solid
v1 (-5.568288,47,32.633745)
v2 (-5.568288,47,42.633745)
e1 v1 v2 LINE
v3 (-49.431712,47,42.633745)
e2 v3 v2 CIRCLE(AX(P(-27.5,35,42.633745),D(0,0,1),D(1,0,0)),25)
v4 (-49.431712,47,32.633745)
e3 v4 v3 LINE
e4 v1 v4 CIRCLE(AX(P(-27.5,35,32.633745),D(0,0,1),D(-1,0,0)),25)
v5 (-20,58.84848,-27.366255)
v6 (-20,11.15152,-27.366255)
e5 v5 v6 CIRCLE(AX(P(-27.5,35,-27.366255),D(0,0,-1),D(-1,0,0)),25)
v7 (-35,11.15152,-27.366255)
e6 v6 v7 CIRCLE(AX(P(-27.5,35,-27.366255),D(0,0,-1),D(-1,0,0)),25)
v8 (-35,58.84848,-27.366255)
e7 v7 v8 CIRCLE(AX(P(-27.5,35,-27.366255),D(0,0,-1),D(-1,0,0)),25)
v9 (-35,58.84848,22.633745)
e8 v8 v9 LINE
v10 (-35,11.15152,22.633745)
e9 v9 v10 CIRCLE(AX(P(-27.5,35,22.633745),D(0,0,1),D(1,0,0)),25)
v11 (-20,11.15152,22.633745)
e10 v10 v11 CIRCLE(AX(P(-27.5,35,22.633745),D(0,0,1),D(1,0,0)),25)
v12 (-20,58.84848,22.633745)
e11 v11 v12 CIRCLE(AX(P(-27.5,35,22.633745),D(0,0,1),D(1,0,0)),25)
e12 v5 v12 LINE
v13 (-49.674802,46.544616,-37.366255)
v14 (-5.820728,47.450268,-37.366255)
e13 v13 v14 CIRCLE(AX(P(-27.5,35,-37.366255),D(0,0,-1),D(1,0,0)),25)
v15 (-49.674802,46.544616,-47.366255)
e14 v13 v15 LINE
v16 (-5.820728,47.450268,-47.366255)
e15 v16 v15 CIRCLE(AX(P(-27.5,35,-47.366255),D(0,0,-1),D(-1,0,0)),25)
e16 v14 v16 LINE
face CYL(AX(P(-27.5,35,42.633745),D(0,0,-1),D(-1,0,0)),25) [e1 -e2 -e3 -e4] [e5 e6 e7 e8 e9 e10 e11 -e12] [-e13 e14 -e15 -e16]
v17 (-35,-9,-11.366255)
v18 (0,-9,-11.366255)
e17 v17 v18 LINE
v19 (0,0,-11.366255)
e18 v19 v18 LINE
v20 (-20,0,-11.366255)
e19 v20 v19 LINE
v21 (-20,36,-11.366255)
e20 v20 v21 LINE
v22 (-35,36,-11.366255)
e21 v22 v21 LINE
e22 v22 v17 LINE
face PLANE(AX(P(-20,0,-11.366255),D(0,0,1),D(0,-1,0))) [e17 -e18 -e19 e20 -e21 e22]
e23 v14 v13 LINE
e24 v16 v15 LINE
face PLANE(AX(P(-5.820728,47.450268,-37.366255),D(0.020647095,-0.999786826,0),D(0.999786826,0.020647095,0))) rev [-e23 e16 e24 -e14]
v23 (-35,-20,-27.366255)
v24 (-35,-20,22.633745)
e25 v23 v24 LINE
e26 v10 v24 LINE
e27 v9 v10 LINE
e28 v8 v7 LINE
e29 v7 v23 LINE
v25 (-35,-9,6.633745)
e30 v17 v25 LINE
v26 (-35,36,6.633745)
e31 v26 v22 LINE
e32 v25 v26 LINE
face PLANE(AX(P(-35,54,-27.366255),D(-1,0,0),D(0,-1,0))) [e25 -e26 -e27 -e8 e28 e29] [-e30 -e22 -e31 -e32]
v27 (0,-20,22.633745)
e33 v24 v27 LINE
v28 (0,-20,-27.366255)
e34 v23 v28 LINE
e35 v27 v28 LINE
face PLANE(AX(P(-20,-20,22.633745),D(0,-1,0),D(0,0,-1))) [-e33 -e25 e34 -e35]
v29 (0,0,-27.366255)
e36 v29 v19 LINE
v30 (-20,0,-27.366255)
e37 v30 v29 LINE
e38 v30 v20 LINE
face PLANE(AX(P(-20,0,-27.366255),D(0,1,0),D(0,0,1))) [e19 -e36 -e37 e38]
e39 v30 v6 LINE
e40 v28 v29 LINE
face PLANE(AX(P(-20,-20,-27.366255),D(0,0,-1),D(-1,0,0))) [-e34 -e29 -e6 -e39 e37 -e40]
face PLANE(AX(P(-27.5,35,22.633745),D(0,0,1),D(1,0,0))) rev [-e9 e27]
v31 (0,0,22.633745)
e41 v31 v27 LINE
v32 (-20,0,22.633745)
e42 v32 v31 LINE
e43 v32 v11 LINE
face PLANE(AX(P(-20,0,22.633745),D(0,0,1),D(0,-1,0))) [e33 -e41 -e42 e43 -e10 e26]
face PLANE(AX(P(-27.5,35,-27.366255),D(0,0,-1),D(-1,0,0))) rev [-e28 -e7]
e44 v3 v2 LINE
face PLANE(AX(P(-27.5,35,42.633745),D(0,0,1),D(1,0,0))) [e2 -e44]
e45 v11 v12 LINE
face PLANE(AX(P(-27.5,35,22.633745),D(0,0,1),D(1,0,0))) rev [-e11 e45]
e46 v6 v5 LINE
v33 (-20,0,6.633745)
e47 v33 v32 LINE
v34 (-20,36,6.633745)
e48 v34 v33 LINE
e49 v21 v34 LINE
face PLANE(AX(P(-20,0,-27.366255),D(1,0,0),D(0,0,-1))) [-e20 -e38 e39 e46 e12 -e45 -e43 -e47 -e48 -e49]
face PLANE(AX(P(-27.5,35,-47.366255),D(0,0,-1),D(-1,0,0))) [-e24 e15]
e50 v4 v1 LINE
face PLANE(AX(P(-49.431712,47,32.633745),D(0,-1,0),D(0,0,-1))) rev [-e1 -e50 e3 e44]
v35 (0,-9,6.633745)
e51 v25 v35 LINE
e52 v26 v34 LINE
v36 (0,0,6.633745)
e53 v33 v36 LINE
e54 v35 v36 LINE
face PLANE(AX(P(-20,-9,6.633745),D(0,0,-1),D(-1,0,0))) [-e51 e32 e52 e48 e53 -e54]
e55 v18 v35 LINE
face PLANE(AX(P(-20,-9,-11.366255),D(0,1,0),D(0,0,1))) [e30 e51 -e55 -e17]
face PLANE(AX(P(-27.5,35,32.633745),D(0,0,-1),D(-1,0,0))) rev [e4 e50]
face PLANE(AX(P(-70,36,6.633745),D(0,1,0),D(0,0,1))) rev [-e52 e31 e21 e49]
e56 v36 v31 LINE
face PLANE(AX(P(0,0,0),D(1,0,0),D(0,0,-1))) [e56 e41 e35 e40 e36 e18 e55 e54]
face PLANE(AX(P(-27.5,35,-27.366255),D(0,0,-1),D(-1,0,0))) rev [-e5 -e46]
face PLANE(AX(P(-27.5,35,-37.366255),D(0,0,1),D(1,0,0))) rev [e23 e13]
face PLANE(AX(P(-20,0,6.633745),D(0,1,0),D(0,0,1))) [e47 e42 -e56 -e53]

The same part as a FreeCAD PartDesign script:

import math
import FreeCAD as App
import Part
import Sketcher
from FreeCAD import Vector


def add_polygon(sketch, points):
    """Adds a closed chain of lines whose ends are joined by coincident constraints."""
    first, n = sketch.GeometryCount, len(points)
    for a, b in zip(points, points[1:] + points[:1]):
        sketch.addGeometry(Part.LineSegment(App.Vector(*a, 0), App.Vector(*b, 0)), False)
    for i in range(n):
        sketch.addConstraint(Sketcher.Constraint("Coincident", first + i, 2, first + (i + 1) % n, 1))

doc = App.newDocument("Part")
body = doc.addObject("PartDesign::Body", "Body")

sketch1 = body.newObject("Sketcher::SketchObject", "Sketch")
sketch1.AttachmentSupport = (doc.getObject("YZ_Plane"), [""])
sketch1.MapMode = "FlatFace"
add_polygon(sketch1, [(0, 23), (-20, 23), (-20, -27), (0, -27), (0, -11), (-9, -11), (-9, 7), (0, 7)])
sketch1.addConstraint([
    Sketcher.Constraint("Horizontal", 0),
    Sketcher.Constraint("Vertical", 1),
    Sketcher.Constraint("Horizontal", 2),
    Sketcher.Constraint("Vertical", 3),
    Sketcher.Constraint("Horizontal", 4),
    Sketcher.Constraint("Vertical", 5),
    Sketcher.Constraint("Horizontal", 6),
    Sketcher.Constraint("Vertical", 7),
    Sketcher.Constraint("PointOnObject", 2, 2, -2),
    Sketcher.Constraint("PointOnObject", 6, 2, -2),
    Sketcher.Constraint("Equal", 3, 7),
    Sketcher.Constraint("DistanceX", 0, 2, 0, 1, 20.0),
    Sketcher.Constraint("DistanceX", 4, 2, 4, 1, 9.0),
    Sketcher.Constraint("DistanceY", 1, 2, 1, 1, 50.0),
    Sketcher.Constraint("DistanceY", 3, 1, 3, 2, 16.0),
    Sketcher.Constraint("DistanceY", -1, 1, 0, 2, 22.633745),
])
pad1 = body.newObject("PartDesign::Pad", "Pad")
pad1.Profile = sketch1
pad1.Length = 20
pad1.Reversed = True

sketch2 = body.newObject("Sketcher::SketchObject", "Sketch001")
sketch2.AttachmentSupport = (doc.getObject("XY_Plane"), [""])
sketch2.MapMode = "FlatFace"
sketch2.AttachmentOffset = App.Placement(Vector(0, 0, 22.633745), App.Rotation())
add_polygon(sketch2, [(-20, 54), (-35, 54), (-35, -20), (-20, -20)])
sketch2.addConstraint([
    Sketcher.Constraint("Horizontal", 0),
    Sketcher.Constraint("Vertical", 1),
    Sketcher.Constraint("Horizontal", 2),
    Sketcher.Constraint("Vertical", 3),
    Sketcher.Constraint("DistanceX", 0, 2, 0, 1, 15.0),
    Sketcher.Constraint("DistanceY", 1, 2, 1, 1, 74.0),
    Sketcher.Constraint("DistanceX", 0, 2, -1, 1, 35.0),
    Sketcher.Constraint("DistanceY", -1, 1, 0, 2, 54.0),
])
pad2 = body.newObject("PartDesign::Pad", "Pad001")
pad2.Profile = sketch2
pad2.Length = 50
pad2.Reversed = True

sketch3 = body.newObject("Sketcher::SketchObject", "Sketch002")
sketch3.AttachmentSupport = (doc.getObject("YZ_Plane"), [""])
sketch3.MapMode = "FlatFace"
sketch3.AttachmentOffset = App.Placement(Vector(0, 0, -20), App.Rotation())
add_polygon(sketch3, [(36, 7), (-9, 7), (-9, -11), (36, -11)])
sketch3.addConstraint([
    Sketcher.Constraint("Horizontal", 0),
    Sketcher.Constraint("Vertical", 1),
    Sketcher.Constraint("Horizontal", 2),
    Sketcher.Constraint("Vertical", 3),
    Sketcher.Constraint("DistanceX", 0, 2, 0, 1, 45.0),
    Sketcher.Constraint("DistanceY", 1, 2, 1, 1, 18.0),
    Sketcher.Constraint("DistanceX", 0, 2, -1, 1, 9.0),
    Sketcher.Constraint("DistanceY", -1, 1, 0, 2, 6.633745),
])
pocket1 = body.newObject("PartDesign::Pocket", "Pocket")
pocket1.Profile = sketch3
pocket1.Length = 50

sketch4 = body.newObject("Sketcher::SketchObject", "Sketch003")
sketch4.AttachmentSupport = (doc.getObject("XY_Plane"), [""])
sketch4.MapMode = "FlatFace"
sketch4.AttachmentOffset = App.Placement(Vector(0, 0, 22.633745), App.Rotation())
sketch4.addGeometry(Part.Circle(Vector(-28, 35, 0), Vector(0, 0, 1), 25), False)
sketch4.addConstraint([
    Sketcher.Constraint("Diameter", 0, 50.0),
    Sketcher.Constraint("DistanceY", -1, 1, 0, 3, 35.0),
    Sketcher.Constraint("DistanceX", 0, 3, -1, 1, 27.5),
])
pad3 = body.newObject("PartDesign::Pad", "Pad002")
pad3.Profile = sketch4
pad3.Length = 20

sketch5 = body.newObject("Sketcher::SketchObject", "Sketch004")
sketch5.AttachmentSupport = (doc.getObject("XY_Plane"), [""])
sketch5.MapMode = "FlatFace"
sketch5.AttachmentOffset = App.Placement(Vector(0, 0, 32.633745), App.Rotation())
sketch5.addGeometry([
    Part.LineSegment(Vector(-49, 47, 0), Vector(-6, 47, 0)),
    Part.ArcOfCircle(Part.Circle(Vector(-28, 35, 0), Vector(0, 0, 1), 25), math.radians(29), math.radians(151)),
], False)
sketch5.addConstraint([
    Sketcher.Constraint("Coincident", 0, 1, 1, 2),
    Sketcher.Constraint("Coincident", 1, 1, 0, 2),
    Sketcher.Constraint("Horizontal", 0),
    Sketcher.Constraint("Radius", 1, 25.0),
    Sketcher.Constraint("DistanceY", -1, 1, 1, 3, 35.0),
    Sketcher.Constraint("DistanceY", -1, 1, 0, 1, 47.0),
    Sketcher.Constraint("DistanceX", 1, 3, -1, 1, 27.5),
])
pocket2 = body.newObject("PartDesign::Pocket", "Pocket001")
pocket2.Profile = sketch5
pocket2.Length = 10
pocket2.Reversed = True

sketch6 = body.newObject("Sketcher::SketchObject", "Sketch005")
sketch6.AttachmentSupport = (doc.getObject("XY_Plane"), [""])
sketch6.MapMode = "FlatFace"
sketch6.AttachmentOffset = App.Placement(Vector(0, 0, -27.366255), App.Rotation())
sketch6.addGeometry([
    Part.LineSegment(Vector(-20, 58.8, 0), Vector(-20, 54, 0)),
    Part.LineSegment(Vector(-20, 54, 0), Vector(-35, 54, 0)),
    Part.LineSegment(Vector(-35, 54, 0), Vector(-35, 58.8, 0)),
    Part.ArcOfCircle(Part.Circle(Vector(-27.5, 35, 0), Vector(0, 0, 1), 25), math.radians(73), math.radians(107)),
], False)
sketch6.addConstraint([
    Sketcher.Constraint("Coincident", 0, 2, 1, 1),
    Sketcher.Constraint("Coincident", 1, 2, 2, 1),
    Sketcher.Constraint("Coincident", 2, 2, 3, 2),
    Sketcher.Constraint("Coincident", 3, 1, 0, 1),
    Sketcher.Constraint("Vertical", 0),
    Sketcher.Constraint("Horizontal", 1),
    Sketcher.Constraint("Vertical", 2),
    Sketcher.Constraint("Horizontal", 2, 2, 3, 1),
    Sketcher.Constraint("Radius", 3, 25.0),
    Sketcher.Constraint("DistanceX", 1, 2, 1, 1, 15.0),
    Sketcher.Constraint("DistanceY", -1, 1, 3, 3, 35.0),
    Sketcher.Constraint("DistanceX", 0, 2, -1, 1, 20.0),
    Sketcher.Constraint("DistanceY", -1, 1, 0, 2, 54.0),
])
pad4 = body.newObject("PartDesign::Pad", "Pad003")
pad4.Profile = sketch6
pad4.Length = 50

sketch7 = body.newObject("Sketcher::SketchObject", "Sketch006")
sketch7.AttachmentSupport = (doc.getObject("XY_Plane"), [""])
sketch7.MapMode = "FlatFace"
sketch7.AttachmentOffset = App.Placement(Vector(0, 0, -47.366255), App.Rotation())
sketch7.addGeometry(Part.Circle(Vector(-28, 35, 0), Vector(0, 0, 1), 25), False)
sketch7.addConstraint([
    Sketcher.Constraint("Diameter", 0, 50.0),
    Sketcher.Constraint("DistanceY", -1, 1, 0, 3, 35.0),
    Sketcher.Constraint("DistanceX", 0, 3, -1, 1, 27.5),
])
pad5 = body.newObject("PartDesign::Pad", "Pad004")
pad5.Profile = sketch7
pad5.Length = 20

sketch8 = body.newObject("Sketcher::SketchObject", "Sketch007")
sketch8.AttachmentSupport = (doc.getObject("XY_Plane"), [""])
sketch8.MapMode = "FlatFace"
sketch8.AttachmentOffset = App.Placement(Vector(0, 0, -47.366255), App.Rotation())
sketch8.addGeometry([
    Part.LineSegment(Vector(-6, 47, 0), Vector(-50, 47, 0)),
    Part.ArcOfCircle(Part.Circle(Vector(-28, 35, 0), Vector(0, 0, 1), 25), math.radians(30), math.radians(152)),
], False)
sketch8.addConstraint([
    Sketcher.Constraint("Coincident", 0, 1, 1, 1),
    Sketcher.Constraint("Coincident", 1, 2, 0, 2),
    Sketcher.Constraint("Radius", 1, 25.0),
    Sketcher.Constraint("DistanceY", -1, 1, 1, 3, 35.0),
    Sketcher.Constraint("DistanceX", 1, 3, -1, 1, 27.5),
    Sketcher.Constraint("DistanceX", 0, 1, -1, 1, 5.820728),
    Sketcher.Constraint("Distance", 0, 43.863424),
])
pocket3 = body.newObject("PartDesign::Pocket", "Pocket002")
pocket3.Profile = sketch8
pocket3.Length = 10
pocket3.Reversed = True

doc.recompute()
